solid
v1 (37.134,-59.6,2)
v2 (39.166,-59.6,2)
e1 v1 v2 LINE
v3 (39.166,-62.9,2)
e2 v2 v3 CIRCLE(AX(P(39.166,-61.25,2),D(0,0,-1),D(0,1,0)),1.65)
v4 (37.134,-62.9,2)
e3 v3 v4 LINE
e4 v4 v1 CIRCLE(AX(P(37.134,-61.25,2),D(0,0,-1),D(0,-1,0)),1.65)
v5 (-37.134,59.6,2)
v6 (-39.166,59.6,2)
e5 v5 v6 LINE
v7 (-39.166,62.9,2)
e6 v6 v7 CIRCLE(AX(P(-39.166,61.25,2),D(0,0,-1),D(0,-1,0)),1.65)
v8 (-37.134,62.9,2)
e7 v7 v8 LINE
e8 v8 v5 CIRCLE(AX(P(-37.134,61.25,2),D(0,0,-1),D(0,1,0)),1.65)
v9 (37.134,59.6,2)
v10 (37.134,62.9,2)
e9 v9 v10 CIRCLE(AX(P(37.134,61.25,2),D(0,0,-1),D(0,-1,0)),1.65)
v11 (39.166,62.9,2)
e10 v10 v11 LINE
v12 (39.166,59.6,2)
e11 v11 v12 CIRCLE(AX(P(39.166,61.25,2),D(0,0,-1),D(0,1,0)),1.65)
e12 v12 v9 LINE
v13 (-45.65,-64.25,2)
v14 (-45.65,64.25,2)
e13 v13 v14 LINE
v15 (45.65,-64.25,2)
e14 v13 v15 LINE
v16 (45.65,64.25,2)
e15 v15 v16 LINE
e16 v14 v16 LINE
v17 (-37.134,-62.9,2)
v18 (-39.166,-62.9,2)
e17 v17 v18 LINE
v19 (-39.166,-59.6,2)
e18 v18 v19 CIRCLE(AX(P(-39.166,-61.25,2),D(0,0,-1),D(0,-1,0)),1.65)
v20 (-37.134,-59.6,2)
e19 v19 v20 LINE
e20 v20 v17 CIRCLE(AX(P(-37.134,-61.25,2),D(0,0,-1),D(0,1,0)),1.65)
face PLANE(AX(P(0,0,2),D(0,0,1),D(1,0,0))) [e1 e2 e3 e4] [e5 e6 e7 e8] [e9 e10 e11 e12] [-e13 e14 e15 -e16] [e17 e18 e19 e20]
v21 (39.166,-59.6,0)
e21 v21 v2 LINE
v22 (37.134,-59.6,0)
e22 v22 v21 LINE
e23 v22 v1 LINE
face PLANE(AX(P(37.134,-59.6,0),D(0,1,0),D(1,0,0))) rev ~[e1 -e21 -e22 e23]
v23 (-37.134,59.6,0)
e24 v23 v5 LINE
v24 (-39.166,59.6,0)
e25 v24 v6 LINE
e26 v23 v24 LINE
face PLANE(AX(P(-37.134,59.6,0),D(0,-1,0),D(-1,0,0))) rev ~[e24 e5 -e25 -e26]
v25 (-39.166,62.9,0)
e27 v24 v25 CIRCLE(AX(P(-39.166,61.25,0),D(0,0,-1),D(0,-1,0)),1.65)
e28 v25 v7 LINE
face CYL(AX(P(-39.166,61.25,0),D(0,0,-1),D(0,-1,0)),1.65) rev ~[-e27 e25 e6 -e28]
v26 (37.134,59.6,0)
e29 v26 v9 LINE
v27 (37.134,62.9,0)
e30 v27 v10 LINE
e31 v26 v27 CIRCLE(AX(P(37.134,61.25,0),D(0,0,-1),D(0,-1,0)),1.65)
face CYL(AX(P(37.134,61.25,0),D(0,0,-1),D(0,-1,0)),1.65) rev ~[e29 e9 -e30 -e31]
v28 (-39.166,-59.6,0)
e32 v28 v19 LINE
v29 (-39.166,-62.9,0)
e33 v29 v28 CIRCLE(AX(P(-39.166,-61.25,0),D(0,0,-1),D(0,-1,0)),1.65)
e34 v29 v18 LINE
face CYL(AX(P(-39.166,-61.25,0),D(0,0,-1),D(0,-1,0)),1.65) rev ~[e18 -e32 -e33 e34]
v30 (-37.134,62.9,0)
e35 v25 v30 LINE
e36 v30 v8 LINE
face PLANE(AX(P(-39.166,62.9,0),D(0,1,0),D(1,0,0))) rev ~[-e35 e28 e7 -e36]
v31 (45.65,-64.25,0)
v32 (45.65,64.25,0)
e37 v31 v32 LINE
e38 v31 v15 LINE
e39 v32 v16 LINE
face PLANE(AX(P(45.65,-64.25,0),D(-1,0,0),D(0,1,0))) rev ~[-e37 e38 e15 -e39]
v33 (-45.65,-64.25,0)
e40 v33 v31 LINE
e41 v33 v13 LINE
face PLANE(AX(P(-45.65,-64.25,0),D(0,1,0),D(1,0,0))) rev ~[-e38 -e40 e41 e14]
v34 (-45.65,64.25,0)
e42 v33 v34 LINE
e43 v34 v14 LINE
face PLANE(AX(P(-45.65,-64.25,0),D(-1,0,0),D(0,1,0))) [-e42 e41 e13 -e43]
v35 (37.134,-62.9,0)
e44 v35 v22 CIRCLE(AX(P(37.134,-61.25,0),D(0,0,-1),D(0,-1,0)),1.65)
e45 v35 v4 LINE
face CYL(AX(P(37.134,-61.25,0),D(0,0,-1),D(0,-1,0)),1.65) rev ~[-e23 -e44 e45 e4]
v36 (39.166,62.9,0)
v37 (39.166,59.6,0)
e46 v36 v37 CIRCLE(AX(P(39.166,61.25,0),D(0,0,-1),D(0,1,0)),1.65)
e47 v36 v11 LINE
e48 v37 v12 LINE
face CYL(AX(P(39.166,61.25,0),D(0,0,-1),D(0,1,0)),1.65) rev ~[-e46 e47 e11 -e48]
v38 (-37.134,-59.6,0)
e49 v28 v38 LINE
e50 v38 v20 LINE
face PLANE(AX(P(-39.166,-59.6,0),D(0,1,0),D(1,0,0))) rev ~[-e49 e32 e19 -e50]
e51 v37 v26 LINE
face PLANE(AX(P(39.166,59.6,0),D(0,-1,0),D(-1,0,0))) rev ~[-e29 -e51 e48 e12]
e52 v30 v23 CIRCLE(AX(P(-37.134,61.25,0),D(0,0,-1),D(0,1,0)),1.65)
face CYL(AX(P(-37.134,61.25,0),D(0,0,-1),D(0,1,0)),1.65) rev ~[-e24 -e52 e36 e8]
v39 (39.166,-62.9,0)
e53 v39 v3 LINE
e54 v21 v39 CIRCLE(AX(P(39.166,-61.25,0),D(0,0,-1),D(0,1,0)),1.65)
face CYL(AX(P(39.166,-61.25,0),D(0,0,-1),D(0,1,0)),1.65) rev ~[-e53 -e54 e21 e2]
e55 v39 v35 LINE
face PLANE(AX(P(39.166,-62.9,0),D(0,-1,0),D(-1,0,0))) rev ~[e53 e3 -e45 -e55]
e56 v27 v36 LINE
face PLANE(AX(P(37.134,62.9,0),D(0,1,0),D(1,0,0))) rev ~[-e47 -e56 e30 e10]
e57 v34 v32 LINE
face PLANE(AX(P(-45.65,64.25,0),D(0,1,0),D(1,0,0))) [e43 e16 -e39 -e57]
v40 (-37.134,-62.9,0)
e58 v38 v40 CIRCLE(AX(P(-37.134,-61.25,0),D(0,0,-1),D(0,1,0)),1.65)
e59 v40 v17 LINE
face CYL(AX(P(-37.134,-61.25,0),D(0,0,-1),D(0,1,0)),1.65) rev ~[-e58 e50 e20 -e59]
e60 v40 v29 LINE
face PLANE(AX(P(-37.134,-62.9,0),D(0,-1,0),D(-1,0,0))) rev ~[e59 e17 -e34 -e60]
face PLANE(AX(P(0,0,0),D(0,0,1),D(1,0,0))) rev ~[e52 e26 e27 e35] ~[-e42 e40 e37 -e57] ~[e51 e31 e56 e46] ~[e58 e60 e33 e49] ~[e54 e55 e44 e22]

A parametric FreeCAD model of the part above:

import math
import FreeCAD as App
import Part
import Sketcher


def add_polygon(sketch, points):
    """Adds a closed chain of lines whose ends are joined by coincident constraints."""
    first, n = sketch.GeometryCount, len(points)
    for a, b in zip(points, points[1:] + points[:1]):
        sketch.addGeometry(Part.LineSegment(App.Vector(*a, 0), App.Vector(*b, 0)), False)
    for i in range(n):
        sketch.addConstraint(Sketcher.Constraint("Coincident", first + i, 2, first + (i + 1) % n, 1))

doc = App.newDocument("Part")
params = doc.addObject("Spreadsheet::Sheet", "Params")
for row, (alias, value) in enumerate([
    ("sketch1_radius", "1.65 mm"),
    ("sketch1_width", "91.3 mm"),
    ("sketch1_height", "128.5 mm"),
    ("pad1_length", "2 mm"),
], start=1):
    params.set(f"A{row}", alias)
    params.set(f"B{row}", "=" + value)
    params.setAlias(f"B{row}", alias)

body = doc.addObject("PartDesign::Body", "Body")

# Sketch on XY plane
sketch1 = body.newObject("Sketcher::SketchObject", "Sketch")
sketch1.AttachmentSupport = (doc.getObject("XY_Plane"), [""])
sketch1.MapMode = "FlatFace"
add_polygon(sketch1, [(-45.65, 64.25), (-45.65, -64.25), (45.65, -64.25), (45.65, 64.25)])  # lines 0-3
sketch1.addGeometry(Part.ArcOfCircle(Part.Circle(App.Vector(-39.166, -61.25, 0), App.Vector(0, 0, 1), 1.65), math.radians(90), math.radians(270)), False)  # 4
sketch1.addGeometry(Part.LineSegment(App.Vector(-39.166, -59.6, 0), App.Vector(-37.134, -59.6, 0)), False)  # 5
sketch1.addGeometry(Part.ArcOfCircle(Part.Circle(App.Vector(-37.134, -61.25, 0), App.Vector(0, 0, 1), 1.65), math.radians(-90), math.radians(90)), False)  # 6
sketch1.addGeometry(Part.LineSegment(App.Vector(-37.134, -62.9, 0), App.Vector(-39.166, -62.9, 0)), False)  # 7
sketch1.addGeometry(Part.ArcOfCircle(Part.Circle(App.Vector(37.134, -61.25, 0), App.Vector(0, 0, 1), 1.65), math.radians(90), math.radians(270)), False)  # 8
sketch1.addGeometry(Part.LineSegment(App.Vector(37.134, -59.6, 0), App.Vector(39.166, -59.6, 0)), False)  # 9
sketch1.addGeometry(Part.ArcOfCircle(Part.Circle(App.Vector(39.166, -61.25, 0), App.Vector(0, 0, 1), 1.65), math.radians(-90), math.radians(90)), False)  # 10
sketch1.addGeometry(Part.LineSegment(App.Vector(39.166, -62.9, 0), App.Vector(37.134, -62.9, 0)), False)  # 11
sketch1.addGeometry(Part.ArcOfCircle(Part.Circle(App.Vector(-39.166, 61.25, 0), App.Vector(0, 0, 1), 1.65), math.radians(90), math.radians(270)), False)  # 12
sketch1.addGeometry(Part.LineSegment(App.Vector(-39.166, 62.9, 0), App.Vector(-37.134, 62.9, 0)), False)  # 13
sketch1.addGeometry(Part.ArcOfCircle(Part.Circle(App.Vector(-37.134, 61.25, 0), App.Vector(0, 0, 1), 1.65), math.radians(-90), math.radians(90)), False)  # 14
sketch1.addGeometry(Part.LineSegment(App.Vector(-37.134, 59.6, 0), App.Vector(-39.166, 59.6, 0)), False)  # 15
sketch1.addGeometry(Part.ArcOfCircle(Part.Circle(App.Vector(37.134, 61.25, 0), App.Vector(0, 0, 1), 1.65), math.radians(90), math.radians(270)), False)  # 16
sketch1.addGeometry(Part.LineSegment(App.Vector(37.134, 62.9, 0), App.Vector(39.166, 62.9, 0)), False)  # 17
sketch1.addGeometry(Part.ArcOfCircle(Part.Circle(App.Vector(39.166, 61.25, 0), App.Vector(0, 0, 1), 1.65), math.radians(-90), math.radians(90)), False)  # 18
sketch1.addGeometry(Part.LineSegment(App.Vector(39.166, 59.6, 0), App.Vector(37.134, 59.6, 0)), False)  # 19
sketch1.addConstraint([
    Sketcher.Constraint("Tangent", 4, 1, 5, 1),
    Sketcher.Constraint("Tangent", 5, 2, 6, 2),
    Sketcher.Constraint("Tangent", 6, 1, 7, 1),
    Sketcher.Constraint("Tangent", 7, 2, 4, 2),
    Sketcher.Constraint("Tangent", 8, 1, 9, 1),
    Sketcher.Constraint("Tangent", 9, 2, 10, 2),
    Sketcher.Constraint("Tangent", 10, 1, 11, 1),
    Sketcher.Constraint("Tangent", 11, 2, 8, 2),
    Sketcher.Constraint("Tangent", 12, 1, 13, 1),
    Sketcher.Constraint("Tangent", 13, 2, 14, 2),
    Sketcher.Constraint("Tangent", 14, 1, 15, 1),
    Sketcher.Constraint("Tangent", 15, 2, 12, 2),
    Sketcher.Constraint("Tangent", 16, 1, 17, 1),
    Sketcher.Constraint("Tangent", 17, 2, 18, 2),
    Sketcher.Constraint("Tangent", 18, 1, 19, 1),
    Sketcher.Constraint("Tangent", 19, 2, 16, 2),
    Sketcher.Constraint("Vertical", 0),
    Sketcher.Constraint("Horizontal", 1),
    Sketcher.Constraint("Vertical", 2),
    Sketcher.Constraint("Horizontal", 3),
    Sketcher.Constraint("Horizontal", 5),
    Sketcher.Constraint("Horizontal", 7),
    Sketcher.Constraint("Horizontal", 9),
    Sketcher.Constraint("Horizontal", 11),
    Sketcher.Constraint("Horizontal", 13),
    Sketcher.Constraint("Horizontal", 15),
    Sketcher.Constraint("Horizontal", 17),
    Sketcher.Constraint("Horizontal", 19),
    Sketcher.Constraint("Equal", 6, 8),
    Sketcher.Constraint("Equal", 10, 12),
    Sketcher.Constraint("Equal", 14, 16),
    Sketcher.Constraint("Symmetric", 10, 3, 12, 3, -1, 1),
    Sketcher.Constraint("Symmetric", 6, 3, 16, 3, -1, 1),
    Sketcher.Constraint("Symmetric", 0, 2, 2, 2, -1, 1),
    Sketcher.Constraint("Symmetric", 6, 3, 8, 3, -2),
    Sketcher.Constraint("Vertical", 4, 3, 12, 3),
    Sketcher.Constraint("Vertical", 6, 3, 14, 3),
    Sketcher.Constraint("Vertical", 10, 3, 18, 3),
    Sketcher.Constraint("Radius", 4, 1.65),
    Sketcher.Constraint("DistanceX", 1, 1, 1, 2, 91.3),
    Sketcher.Constraint("DistanceY", 0, 2, 0, 1, 128.5),
    Sketcher.Constraint("DistanceY", 0, 2, 4, 3, 3.0),
    Sketcher.Constraint("DistanceX", 4, 3, 8, 3, 76.3),
    Sketcher.Constraint("DistanceX", 5, 1, 5, 2, 2.032),
])
sketch1.setExpression("Constraints[42]", "Params.sketch1_radius")
sketch1.setExpression("Constraints[43]", "Params.sketch1_width")
sketch1.setExpression("Constraints[44]", "Params.sketch1_height")
pad1 = body.newObject("PartDesign::Pad", "Pad")
pad1.Profile = sketch1
pad1.setExpression("Length", "Params.pad1_length")

doc.recompute()
